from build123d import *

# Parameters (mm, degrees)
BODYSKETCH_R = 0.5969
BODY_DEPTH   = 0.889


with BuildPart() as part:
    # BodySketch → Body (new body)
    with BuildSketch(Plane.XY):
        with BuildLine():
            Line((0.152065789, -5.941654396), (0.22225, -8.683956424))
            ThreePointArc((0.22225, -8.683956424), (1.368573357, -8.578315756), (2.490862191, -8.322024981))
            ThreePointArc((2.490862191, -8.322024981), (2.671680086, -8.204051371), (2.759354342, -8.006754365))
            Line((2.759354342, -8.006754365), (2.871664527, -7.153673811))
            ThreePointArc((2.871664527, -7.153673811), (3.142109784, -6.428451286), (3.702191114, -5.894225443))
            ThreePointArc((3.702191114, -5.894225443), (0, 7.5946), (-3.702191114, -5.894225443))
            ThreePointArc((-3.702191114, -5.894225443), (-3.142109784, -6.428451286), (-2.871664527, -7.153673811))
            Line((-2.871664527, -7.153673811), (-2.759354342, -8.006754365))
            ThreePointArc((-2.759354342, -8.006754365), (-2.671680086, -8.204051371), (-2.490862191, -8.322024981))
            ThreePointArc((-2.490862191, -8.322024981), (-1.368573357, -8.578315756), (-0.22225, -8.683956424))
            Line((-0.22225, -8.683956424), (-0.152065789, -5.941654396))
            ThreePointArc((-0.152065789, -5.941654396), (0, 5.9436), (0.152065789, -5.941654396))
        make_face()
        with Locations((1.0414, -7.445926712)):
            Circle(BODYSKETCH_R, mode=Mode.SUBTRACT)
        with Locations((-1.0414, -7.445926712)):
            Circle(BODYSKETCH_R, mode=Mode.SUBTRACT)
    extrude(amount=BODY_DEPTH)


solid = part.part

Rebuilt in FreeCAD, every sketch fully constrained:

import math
import FreeCAD as App
import Part
import Sketcher
Q = App.Units.Quantity

doc = App.newDocument("Part")
params = doc.addObject("Spreadsheet::Sheet", "Params")
for row, (alias, value) in enumerate([
    ("sketch1_diameter", "0.047 in"),
    ("sketch1_radius", "0.342 in"),
    ("sketch1_radius2", "0.015 in"),
    ("sketch1_radius3", "0.234 in"),
    ("pad1_length", "0.035 in"),
], start=1):
    params.set(f"A{row}", alias)
    params.set(f"B{row}", "=" + value)
    params.setAlias(f"B{row}", alias)

body = doc.addObject("PartDesign::Body", "Body")

# Sketch on XY plane
sketch1 = body.newObject("Sketcher::SketchObject", "Sketch")
sketch1.AttachmentSupport = (doc.getObject("XY_Plane"), [""])
sketch1.MapMode = "FlatFace"
sketch1.addGeometry([
    Part.LineSegment(App.Vector(0.15, -5.94, 0), App.Vector(0.22, -8.68, 0)),  # 0
    Part.ArcOfCircle(Part.Circle(App.Vector(0, 0, 0), App.Vector(0, 0, 1), 8.69), math.radians(-88.53), math.radians(-73.34)),  # 1
    Part.ArcOfCircle(Part.Circle(App.Vector(2.38, -7.96, 0), App.Vector(0, 0, 1), 0.38), math.radians(-73), math.radians(-7)),  # 2
    Part.LineSegment(App.Vector(2.76, -8.01, 0), App.Vector(2.87, -7.15, 0)),  # 3
    Part.ArcOfCircle(Part.Circle(App.Vector(4.58, -7.38, 0), App.Vector(0, 0, 1), 1.73), math.radians(121), math.radians(173)),  # 4
    Part.ArcOfCircle(Part.Circle(App.Vector(0, 0.34, 0), App.Vector(0, 0, 1), 7.25), math.radians(-59), math.radians(239)),  # 5
    Part.ArcOfCircle(Part.Circle(App.Vector(-4.58, -7.38, 0), App.Vector(0, 0, 1), 1.73), math.radians(7), math.radians(59)),  # 6
    Part.LineSegment(App.Vector(-2.87, -7.15, 0), App.Vector(-2.76, -8.01, 0)),  # 7
    Part.ArcOfCircle(Part.Circle(App.Vector(-2.38, -7.96, 0), App.Vector(0, 0, 1), 0.38), math.radians(-173), math.radians(-107)),  # 8
    Part.ArcOfCircle(Part.Circle(App.Vector(0, 0, 0), App.Vector(0, 0, 1), 8.69), math.radians(-106.66), math.radians(-91.47)),  # 9
    Part.LineSegment(App.Vector(-0.22, -8.68, 0), App.Vector(-0.15, -5.94, 0)),  # 10
    Part.ArcOfCircle(Part.Circle(App.Vector(0, 0, 0), App.Vector(0, 0, 1), 5.94), math.radians(-89), math.radians(269)),  # 11
    Part.Circle(App.Vector(-1.04, -7.45, 0), App.Vector(0, 0, 1), 0.6),  # 12
    Part.Circle(App.Vector(1.04, -7.45, 0), App.Vector(0, 0, 1), 0.6),  # 13
], False)
sketch1.addConstraint([
    Sketcher.Constraint("Coincident", 0, 2, 1, 1),
    Sketcher.Constraint("Tangent", 1, 2, 2, 1),
    Sketcher.Constraint("Tangent", 2, 2, 3, 1),
    Sketcher.Constraint("Tangent", 3, 2, 4, 2),
    Sketcher.Constraint("Tangent", 4, 1, 5, 1),
    Sketcher.Constraint("Tangent", 5, 2, 6, 2),
    Sketcher.Constraint("Tangent", 6, 1, 7, 1),
    Sketcher.Constraint("Tangent", 7, 2, 8, 1),
    Sketcher.Constraint("Tangent", 8, 2, 9, 1),
    Sketcher.Constraint("Coincident", 9, 2, 10, 1),
    Sketcher.Constraint("Coincident", 10, 2, 11, 2),
    Sketcher.Constraint("Coincident", 11, 1, 0, 1),
    Sketcher.Constraint("Coincident", 1, 3, -1, 1),
    Sketcher.Constraint("Coincident", 9, 3, -1, 1),
    Sketcher.Constraint("Coincident", 11, 3, -1, 1),
    Sketcher.Constraint("Equal", 4, 6),
    Sketcher.Constraint("Equal", 2, 8),
    Sketcher.Constraint("Equal", 1, 9),
    Sketcher.Constraint("Equal", 12, 13),
    Sketcher.Constraint("Symmetric", 4, 3, 6, 3, -2),
    Sketcher.Constraint("Symmetric", 12, 3, 13, 3, -2),
    Sketcher.Constraint("Horizontal", 2, 3, 8, 3),
    Sketcher.Constraint("Horizontal", 0, 2, 9, 2),
    Sketcher.Constraint("Horizontal", 10, 2, 11, 1),
    Sketcher.Constraint("Diameter", 12, Q("0.047 in")),
    Sketcher.Constraint("Radius", 1, Q("0.342 in")),
    Sketcher.Constraint("Radius", 2, Q("0.015 in")),
    Sketcher.Constraint("Radius", 11, Q("0.234 in")),
    Sketcher.Constraint("Angle", 3, Q("82.5 deg")),
    Sketcher.Constraint("DistanceX", 12, 3, -1, 1, Q("0.041 in")),
    Sketcher.Constraint("Radius", 5, 7.252471),
    Sketcher.Constraint("Radius", 4, 1.726768),
    Sketcher.Constraint("DistanceX", 9, 2, 0, 2, Q("0.0175 in")),
    Sketcher.Constraint("DistanceY", 1, 2, 13, 3, 0.876098),
    Sketcher.Constraint("DistanceY", 2, 3, 4, 1, 2.062798),
    Sketcher.Constraint("DistanceY", 8, 2, 8, 3, 0.365001),
    Sketcher.Constraint("DistanceX", 6, 1, 10, 2, 2.719599),
])
sketch1.setExpression("Constraints[24]", "Params.sketch1_diameter")
sketch1.setExpression("Constraints[25]", "Params.sketch1_radius")
sketch1.setExpression("Constraints[26]", "Params.sketch1_radius2")
sketch1.setExpression("Constraints[27]", "Params.sketch1_radius3")
pad1 = body.newObject("PartDesign::Pad", "Pad")
pad1.Profile = sketch1
pad1.setExpression("Length", "Params.pad1_length")

doc.recompute()
